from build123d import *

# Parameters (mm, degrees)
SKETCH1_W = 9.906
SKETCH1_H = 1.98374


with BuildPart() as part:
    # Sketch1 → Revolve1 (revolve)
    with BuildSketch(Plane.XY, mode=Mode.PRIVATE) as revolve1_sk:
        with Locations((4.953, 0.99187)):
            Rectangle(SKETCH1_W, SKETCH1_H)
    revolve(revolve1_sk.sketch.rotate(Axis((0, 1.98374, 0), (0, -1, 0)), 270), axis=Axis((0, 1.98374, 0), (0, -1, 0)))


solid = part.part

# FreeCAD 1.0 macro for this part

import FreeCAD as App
import Part
import Sketcher
from FreeCAD import Vector
Q = App.Units.Quantity

doc = App.newDocument("Part")
body = doc.addObject("PartDesign::Body", "Body")

# Sketch on XY plane
sketch1 = body.newObject("Sketcher::SketchObject", "Sketch")
sketch1.AttachmentSupport = (doc.getObject("XY_Plane"), [""])
sketch1.MapMode = "FlatFace"
sketch1.addGeometry(Part.LineSegment(Vector(0, 2, 0), Vector(0, 0, 0)), False)
sketch1.addGeometry(Part.LineSegment(Vector(0, 0, 0), Vector(9.9, 0, 0)), False)
sketch1.addGeometry(Part.LineSegment(Vector(9.9, 0, 0), Vector(9.9, 2, 0)), False)
sketch1.addGeometry(Part.LineSegment(Vector(9.9, 2, 0), Vector(0, 2, 0)), False)
sketch1.addConstraint(Sketcher.Constraint("Coincident", 0, 2, 1, 1))
sketch1.addConstraint(Sketcher.Constraint("Coincident", 1, 2, 2, 1))
sketch1.addConstraint(Sketcher.Constraint("Coincident", 2, 2, 3, 1))
sketch1.addConstraint(Sketcher.Constraint("Coincident", 3, 2, 0, 1))
sketch1.addConstraint(Sketcher.Constraint("Vertical", 0))
sketch1.addConstraint(Sketcher.Constraint("Horizontal", 1))
sketch1.addConstraint(Sketcher.Constraint("Vertical", 2))
sketch1.addConstraint(Sketcher.Constraint("Horizontal", 3))
sketch1.addConstraint(Sketcher.Constraint("Coincident", 0, 2, -1, 1))
sketch1.addConstraint(Sketcher.Constraint("DistanceX", 1, 1, 1, 2, Q("0.39 in")))
sketch1.addConstraint(Sketcher.Constraint("DistanceY", 0, 2, 0, 1, Q("0.0781 in")))
revolution = body.newObject("PartDesign::Revolution", "Revolution")
revolution.Profile = sketch1
revolution.ReferenceAxis = (sketch1, ["V_Axis"])
revolution.Angle = 360

doc.recompute()
